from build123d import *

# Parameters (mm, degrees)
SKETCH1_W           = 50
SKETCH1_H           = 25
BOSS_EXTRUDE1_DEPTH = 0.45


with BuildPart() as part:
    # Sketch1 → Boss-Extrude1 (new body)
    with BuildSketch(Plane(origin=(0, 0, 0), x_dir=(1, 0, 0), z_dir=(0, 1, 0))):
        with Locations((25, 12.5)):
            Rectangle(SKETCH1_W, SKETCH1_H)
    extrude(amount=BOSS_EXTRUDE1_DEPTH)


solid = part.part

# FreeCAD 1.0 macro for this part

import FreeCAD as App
import Part
import Sketcher
from FreeCAD import Vector


def add_polygon(sketch, points):
    """Adds a closed chain of lines whose ends are joined by coincident constraints."""
    first, n = sketch.GeometryCount, len(points)
    for a, b in zip(points, points[1:] + points[:1]):
        sketch.addGeometry(Part.LineSegment(App.Vector(*a, 0), App.Vector(*b, 0)), False)
    for i in range(n):
        sketch.addConstraint(Sketcher.Constraint("Coincident", first + i, 2, first + (i + 1) % n, 1))

doc = App.newDocument("Part")
body = doc.addObject("PartDesign::Body", "Body")

# Sketch on XZ plane
sketch1 = body.newObject("Sketcher::SketchObject", "Sketch")
sketch1.AttachmentSupport = (doc.getObject("XZ_Plane"), [""])
sketch1.MapMode = "FlatFace"
add_polygon(sketch1, [(0, -25), (0, 0), (50, 0), (50, -25)])  # lines 0-3
sketch1.addConstraint([
    Sketcher.Constraint("Vertical", 0),
    Sketcher.Constraint("Horizontal", 1),
    Sketcher.Constraint("Vertical", 2),
    Sketcher.Constraint("Horizontal", 3),
    Sketcher.Constraint("Coincident", 0, 2, -1, 1),
    Sketcher.Constraint("DistanceX", 1, 1, 1, 2, 50.0),
    Sketcher.Constraint("DistanceY", 0, 1, 0, 2, 25.0),
])
pad1 = body.newObject("PartDesign::Pad", "Pad")
pad1.Profile = sketch1
pad1.Length = 0.45
pad1.Reversed = True

doc.recompute()
